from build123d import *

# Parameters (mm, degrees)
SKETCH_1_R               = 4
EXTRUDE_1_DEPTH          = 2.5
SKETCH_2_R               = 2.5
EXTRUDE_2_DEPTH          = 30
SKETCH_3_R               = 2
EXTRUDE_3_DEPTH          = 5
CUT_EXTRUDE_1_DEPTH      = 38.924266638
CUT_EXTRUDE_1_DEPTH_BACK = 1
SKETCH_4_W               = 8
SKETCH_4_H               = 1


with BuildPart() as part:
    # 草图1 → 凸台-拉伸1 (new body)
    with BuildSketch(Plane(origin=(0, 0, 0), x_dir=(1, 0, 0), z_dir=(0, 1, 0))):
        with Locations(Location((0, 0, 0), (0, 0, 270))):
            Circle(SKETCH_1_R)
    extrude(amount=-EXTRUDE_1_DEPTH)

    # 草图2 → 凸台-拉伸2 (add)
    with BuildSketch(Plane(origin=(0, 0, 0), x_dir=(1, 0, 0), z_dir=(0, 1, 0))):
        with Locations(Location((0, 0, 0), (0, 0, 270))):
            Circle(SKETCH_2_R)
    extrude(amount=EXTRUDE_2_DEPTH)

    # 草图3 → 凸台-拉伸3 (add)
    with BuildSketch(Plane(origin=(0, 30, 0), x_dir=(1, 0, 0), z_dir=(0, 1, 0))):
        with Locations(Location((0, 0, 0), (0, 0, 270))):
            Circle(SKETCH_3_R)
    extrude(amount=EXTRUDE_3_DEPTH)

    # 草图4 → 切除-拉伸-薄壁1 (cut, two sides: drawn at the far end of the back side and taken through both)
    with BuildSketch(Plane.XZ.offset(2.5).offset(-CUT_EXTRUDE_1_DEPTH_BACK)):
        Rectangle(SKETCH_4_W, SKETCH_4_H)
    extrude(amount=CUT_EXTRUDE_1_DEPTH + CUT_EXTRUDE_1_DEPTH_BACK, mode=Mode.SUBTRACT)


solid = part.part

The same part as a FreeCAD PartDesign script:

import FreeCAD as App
import Part
import Sketcher

V = App.Vector

doc = App.newDocument("Part")
params = doc.addObject("Spreadsheet::Sheet", "Params")
for row, (alias, value) in enumerate([
    ("sketch1_diameter", "8 mm"),
    ("pad1_length", "2.5 mm"),
    ("sketch2_diameter", "5 mm"),
    ("pad2_length", "30 mm"),
    ("sketch3_diameter", "4 mm"),
    ("pad3_length", "5 mm"),
    ("sketch4_width", "8 mm"),
    ("sketch4_height", "1 mm"),
    ("pocket1_length", "38.924267 mm"),
    ("pocket1_length2", "1 mm"),
], start=1):
    params.set(f"A{row}", alias)
    params.set(f"B{row}", "=" + value)
    params.setAlias(f"B{row}", alias)

body = doc.addObject("PartDesign::Body", "Body")

# Sketch on XZ plane
sketch1 = body.newObject("Sketcher::SketchObject", "Sketch")
sketch1.AttachmentSupport = (doc.getObject("XZ_Plane"), [""])
sketch1.MapMode = "FlatFace"
sketch1.addGeometry(Part.Circle(V(0, 0, 0), V(0, 0, 1), 4), False)
sketch1.addConstraint([
    Sketcher.Constraint("Coincident", 0, 3, -1, 1),
    Sketcher.Constraint("Diameter", 0, 8.0),
])
sketch1.setExpression("Constraints[1]", "Params.sketch1_diameter")
pad1 = body.newObject("PartDesign::Pad", "Pad")
pad1.Profile = sketch1
pad1.setExpression("Length", "Params.pad1_length")

# Sketch on XZ plane
sketch2 = body.newObject("Sketcher::SketchObject", "Sketch001")
sketch2.AttachmentSupport = (doc.getObject("XZ_Plane"), [""])
sketch2.MapMode = "FlatFace"
sketch2.addGeometry(Part.Circle(V(0, 0, 0), V(0, 0, 1), 2.5), False)
sketch2.addConstraint([
    Sketcher.Constraint("Coincident", 0, 3, -1, 1),
    Sketcher.Constraint("Diameter", 0, 5.0),
])
sketch2.setExpression("Constraints[1]", "Params.sketch2_diameter")
pad2 = body.newObject("PartDesign::Pad", "Pad001")
pad2.Profile = sketch2
pad2.setExpression("Length", "Params.pad2_length")
pad2.Reversed = True

# Sketch on XZ plane
sketch3 = body.newObject("Sketcher::SketchObject", "Sketch002")
sketch3.AttachmentSupport = (doc.getObject("XZ_Plane"), [""])
sketch3.MapMode = "FlatFace"
sketch3.AttachmentOffset = App.Placement(V(0, 0, -30), App.Rotation())
sketch3.addGeometry(Part.Circle(V(0, 0, 0), V(0, 0, 1), 2), False)
sketch3.addConstraint([
    Sketcher.Constraint("Coincident", 0, 3, -1, 1),
    Sketcher.Constraint("Diameter", 0, 4.0),
])
sketch3.setExpression("Constraints[1]", "Params.sketch3_diameter")
pad3 = body.newObject("PartDesign::Pad", "Pad002")
pad3.Profile = sketch3
pad3.setExpression("Length", "Params.pad3_length")
pad3.Reversed = True

# Sketch on XZ plane
sketch4 = body.newObject("Sketcher::SketchObject", "Sketch003")
sketch4.AttachmentSupport = (doc.getObject("XZ_Plane"), [""])
sketch4.MapMode = "FlatFace"
sketch4.AttachmentOffset = App.Placement(V(0, 0, 2.5), App.Rotation())
sketch4.addGeometry([
    Part.LineSegment(V(-4, 0.5, 0), V(-4, -0.5, 0)),
    Part.LineSegment(V(-4, -0.5, 0), V(4, -0.5, 0)),
    Part.LineSegment(V(4, -0.5, 0), V(4, 0.5, 0)),
    Part.LineSegment(V(4, 0.5, 0), V(-4, 0.5, 0)),
], False)
sketch4.addConstraint([
    Sketcher.Constraint("Coincident", 0, 2, 1, 1),
    Sketcher.Constraint("Coincident", 1, 2, 2, 1),
    Sketcher.Constraint("Coincident", 2, 2, 3, 1),
    Sketcher.Constraint("Coincident", 3, 2, 0, 1),
    Sketcher.Constraint("Vertical", 0),
    Sketcher.Constraint("Horizontal", 1),
    Sketcher.Constraint("Vertical", 2),
    Sketcher.Constraint("Horizontal", 3),
    Sketcher.Constraint("Symmetric", 0, 2, 2, 2, -1, 1),
    Sketcher.Constraint("DistanceX", 1, 1, 1, 2, 8.0),
    Sketcher.Constraint("DistanceY", 0, 2, 0, 1, 1.0),
])
sketch4.setExpression("Constraints[9]", "Params.sketch4_width")
sketch4.setExpression("Constraints[10]", "Params.sketch4_height")
pocket1 = body.newObject("PartDesign::Pocket", "Pocket")
pocket1.Profile = sketch4
pocket1.Type = "TwoLengths"
pocket1.setExpression("Length", "Params.pocket1_length")
pocket1.setExpression("Length2", "Params.pocket1_length2")
pocket1.Reversed = True

doc.recompute()
